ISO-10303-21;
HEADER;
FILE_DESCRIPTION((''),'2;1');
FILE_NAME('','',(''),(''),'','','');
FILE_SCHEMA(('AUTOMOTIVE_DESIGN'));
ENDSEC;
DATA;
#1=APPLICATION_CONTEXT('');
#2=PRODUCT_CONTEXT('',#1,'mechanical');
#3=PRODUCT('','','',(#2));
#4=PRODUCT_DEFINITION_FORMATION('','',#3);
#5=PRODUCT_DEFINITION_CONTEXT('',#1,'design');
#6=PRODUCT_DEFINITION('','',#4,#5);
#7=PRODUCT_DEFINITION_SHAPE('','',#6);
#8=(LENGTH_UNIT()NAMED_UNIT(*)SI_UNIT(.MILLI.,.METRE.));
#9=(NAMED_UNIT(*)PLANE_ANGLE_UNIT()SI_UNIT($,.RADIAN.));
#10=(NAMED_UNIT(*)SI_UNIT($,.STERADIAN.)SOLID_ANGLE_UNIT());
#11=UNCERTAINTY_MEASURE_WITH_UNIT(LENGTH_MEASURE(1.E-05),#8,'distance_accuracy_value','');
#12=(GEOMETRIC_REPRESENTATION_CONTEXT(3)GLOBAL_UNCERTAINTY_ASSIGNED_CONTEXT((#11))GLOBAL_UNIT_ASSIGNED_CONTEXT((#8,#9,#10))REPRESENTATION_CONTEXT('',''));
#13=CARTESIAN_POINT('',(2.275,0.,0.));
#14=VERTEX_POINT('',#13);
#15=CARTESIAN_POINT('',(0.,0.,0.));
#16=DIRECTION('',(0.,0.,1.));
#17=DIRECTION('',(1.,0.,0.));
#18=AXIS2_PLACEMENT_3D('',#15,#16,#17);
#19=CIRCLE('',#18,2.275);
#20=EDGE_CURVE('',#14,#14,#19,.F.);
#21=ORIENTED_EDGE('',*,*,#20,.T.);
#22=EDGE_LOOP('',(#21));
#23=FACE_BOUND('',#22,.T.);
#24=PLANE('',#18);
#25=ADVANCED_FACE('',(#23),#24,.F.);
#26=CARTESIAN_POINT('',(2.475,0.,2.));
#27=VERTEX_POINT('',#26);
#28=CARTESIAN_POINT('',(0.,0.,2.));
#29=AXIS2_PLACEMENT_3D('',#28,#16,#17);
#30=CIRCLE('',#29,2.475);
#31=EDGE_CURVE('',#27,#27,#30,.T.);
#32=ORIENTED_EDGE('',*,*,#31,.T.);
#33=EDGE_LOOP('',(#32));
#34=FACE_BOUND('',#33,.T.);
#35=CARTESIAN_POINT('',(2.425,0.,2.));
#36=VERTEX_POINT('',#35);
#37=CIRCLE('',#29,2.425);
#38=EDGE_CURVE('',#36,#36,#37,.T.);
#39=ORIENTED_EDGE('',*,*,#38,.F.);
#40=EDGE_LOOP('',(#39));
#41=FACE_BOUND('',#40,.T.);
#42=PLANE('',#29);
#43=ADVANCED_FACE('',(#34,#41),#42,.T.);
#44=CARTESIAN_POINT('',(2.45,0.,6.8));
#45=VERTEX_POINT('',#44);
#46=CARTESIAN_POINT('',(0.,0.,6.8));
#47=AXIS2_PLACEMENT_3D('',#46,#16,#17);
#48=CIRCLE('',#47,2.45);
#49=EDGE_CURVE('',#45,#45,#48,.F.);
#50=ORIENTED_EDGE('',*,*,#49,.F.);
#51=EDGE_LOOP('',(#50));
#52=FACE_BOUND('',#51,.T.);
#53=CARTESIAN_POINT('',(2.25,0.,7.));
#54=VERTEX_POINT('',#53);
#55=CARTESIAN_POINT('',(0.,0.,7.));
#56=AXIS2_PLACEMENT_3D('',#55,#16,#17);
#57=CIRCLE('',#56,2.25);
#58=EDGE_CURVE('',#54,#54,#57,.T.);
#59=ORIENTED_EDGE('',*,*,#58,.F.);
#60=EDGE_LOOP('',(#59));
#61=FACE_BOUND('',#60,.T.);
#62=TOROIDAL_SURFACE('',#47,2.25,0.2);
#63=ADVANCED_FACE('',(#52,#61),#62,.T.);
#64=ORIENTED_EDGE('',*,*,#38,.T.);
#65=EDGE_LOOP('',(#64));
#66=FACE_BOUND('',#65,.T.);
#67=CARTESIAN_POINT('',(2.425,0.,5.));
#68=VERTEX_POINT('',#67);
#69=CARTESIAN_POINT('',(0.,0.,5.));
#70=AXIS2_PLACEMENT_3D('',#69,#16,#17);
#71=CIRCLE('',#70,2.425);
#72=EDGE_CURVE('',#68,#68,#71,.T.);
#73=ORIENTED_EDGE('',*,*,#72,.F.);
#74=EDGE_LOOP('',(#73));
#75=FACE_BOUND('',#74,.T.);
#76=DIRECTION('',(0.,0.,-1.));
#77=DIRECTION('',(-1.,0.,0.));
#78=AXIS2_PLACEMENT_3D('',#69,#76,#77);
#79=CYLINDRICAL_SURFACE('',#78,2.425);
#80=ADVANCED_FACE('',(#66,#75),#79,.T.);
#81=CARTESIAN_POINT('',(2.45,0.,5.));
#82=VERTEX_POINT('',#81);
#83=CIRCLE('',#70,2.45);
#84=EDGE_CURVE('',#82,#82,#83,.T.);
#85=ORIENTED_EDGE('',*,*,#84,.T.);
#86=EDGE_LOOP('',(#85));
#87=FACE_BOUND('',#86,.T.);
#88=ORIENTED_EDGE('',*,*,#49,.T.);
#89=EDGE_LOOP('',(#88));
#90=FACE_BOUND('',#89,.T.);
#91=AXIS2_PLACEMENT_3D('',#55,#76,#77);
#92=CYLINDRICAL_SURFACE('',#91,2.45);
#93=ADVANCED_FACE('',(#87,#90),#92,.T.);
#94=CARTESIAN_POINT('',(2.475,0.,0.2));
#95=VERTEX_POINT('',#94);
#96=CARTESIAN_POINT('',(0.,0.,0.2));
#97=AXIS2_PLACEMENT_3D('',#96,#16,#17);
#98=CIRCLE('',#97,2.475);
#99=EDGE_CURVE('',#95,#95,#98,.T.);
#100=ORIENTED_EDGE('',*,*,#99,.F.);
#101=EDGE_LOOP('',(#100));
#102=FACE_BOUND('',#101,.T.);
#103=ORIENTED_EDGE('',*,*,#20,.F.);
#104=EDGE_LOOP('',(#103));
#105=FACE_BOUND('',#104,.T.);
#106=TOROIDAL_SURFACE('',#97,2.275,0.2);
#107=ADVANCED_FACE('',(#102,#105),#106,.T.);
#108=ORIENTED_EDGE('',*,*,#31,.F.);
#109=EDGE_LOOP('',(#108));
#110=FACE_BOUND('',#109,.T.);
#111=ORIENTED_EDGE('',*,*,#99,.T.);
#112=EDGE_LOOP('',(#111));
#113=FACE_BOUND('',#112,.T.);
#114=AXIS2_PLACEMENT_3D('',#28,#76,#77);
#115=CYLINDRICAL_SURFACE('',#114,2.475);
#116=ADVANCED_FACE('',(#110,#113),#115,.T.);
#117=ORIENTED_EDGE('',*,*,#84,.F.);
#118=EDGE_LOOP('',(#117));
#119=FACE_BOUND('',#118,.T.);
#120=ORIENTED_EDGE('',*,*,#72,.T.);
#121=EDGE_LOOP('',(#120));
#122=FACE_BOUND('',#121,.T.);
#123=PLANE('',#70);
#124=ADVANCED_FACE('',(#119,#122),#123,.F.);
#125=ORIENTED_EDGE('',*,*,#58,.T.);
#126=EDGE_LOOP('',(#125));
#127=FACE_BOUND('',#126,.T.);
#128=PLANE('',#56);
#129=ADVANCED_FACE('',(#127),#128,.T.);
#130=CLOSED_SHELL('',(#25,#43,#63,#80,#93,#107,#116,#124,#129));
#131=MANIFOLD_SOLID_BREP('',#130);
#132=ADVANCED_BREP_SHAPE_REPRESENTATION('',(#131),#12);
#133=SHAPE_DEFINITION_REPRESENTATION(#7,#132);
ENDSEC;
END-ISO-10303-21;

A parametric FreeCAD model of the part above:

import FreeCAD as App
import Part
import Sketcher

V = App.Vector
Q = App.Units.Quantity


def edges_at(feature, points):
    """Names of the edges that pass closest to the given points."""
    edges = feature.Shape.Edges
    near = lambda p: min(range(len(edges)), key=lambda i: edges[i].distToShape(Part.Vertex(*p))[0])
    return sorted({f"Edge{near(p) + 1}" for p in points})

doc = App.newDocument("Part")
body = doc.addObject("PartDesign::Body", "Body")

# Sketch on XY plane
sketch1 = body.newObject("Sketcher::SketchObject", "Sketch")
sketch1.AttachmentSupport = (doc.getObject("XY_Plane"), [""])
sketch1.MapMode = "FlatFace"
sketch1.addGeometry(Part.Circle(V(0, 0, 0), V(0, 0, 1), 2.475), False)
sketch1.addConstraint([
    Sketcher.Constraint("Coincident", 0, 3, -1, 1),
    Sketcher.Constraint("Diameter", 0, Q("4.95 mm")),
])
pad1 = body.newObject("PartDesign::Pad", "Pad")
pad1.Profile = sketch1
pad1.Length = 2

# Sketch on XY plane
sketch2 = body.newObject("Sketcher::SketchObject", "Sketch001")
sketch2.AttachmentSupport = (doc.getObject("XY_Plane"), [""])
sketch2.MapMode = "FlatFace"
sketch2.AttachmentOffset = App.Placement(V(0, 0, 2), App.Rotation())
sketch2.addGeometry(Part.Circle(V(0, 0, 0), V(0, 0, 1), 2.425), False)
sketch2.addConstraint([
    Sketcher.Constraint("Coincident", 0, 3, -1, 1),
    Sketcher.Constraint("Diameter", 0, Q("4.85 mm")),
])
pad2 = body.newObject("PartDesign::Pad", "Pad001")
pad2.Profile = sketch2
pad2.Length = 3

# Sketch on XY plane
sketch3 = body.newObject("Sketcher::SketchObject", "Sketch002")
sketch3.AttachmentSupport = (doc.getObject("XY_Plane"), [""])
sketch3.MapMode = "FlatFace"
sketch3.AttachmentOffset = App.Placement(V(0, 0, 5), App.Rotation())
sketch3.addGeometry(Part.Circle(V(0, 0, 0), V(0, 0, 1), 2.45), False)
sketch3.addConstraint([
    Sketcher.Constraint("Coincident", 0, 3, -1, 1),
    Sketcher.Constraint("Diameter", 0, Q("4.9 mm")),
])
pad3 = body.newObject("PartDesign::Pad", "Pad002")
pad3.Profile = sketch3
pad3.Length = 2
doc.recompute()

fillet = body.newObject("PartDesign::Fillet", "Fillet")
fillet.Base = (pad3, edges_at(pad3, [(-2.475, 0, 0), (-2.45, 0, 7)]))
fillet.Radius = 0.2

doc.recompute()
